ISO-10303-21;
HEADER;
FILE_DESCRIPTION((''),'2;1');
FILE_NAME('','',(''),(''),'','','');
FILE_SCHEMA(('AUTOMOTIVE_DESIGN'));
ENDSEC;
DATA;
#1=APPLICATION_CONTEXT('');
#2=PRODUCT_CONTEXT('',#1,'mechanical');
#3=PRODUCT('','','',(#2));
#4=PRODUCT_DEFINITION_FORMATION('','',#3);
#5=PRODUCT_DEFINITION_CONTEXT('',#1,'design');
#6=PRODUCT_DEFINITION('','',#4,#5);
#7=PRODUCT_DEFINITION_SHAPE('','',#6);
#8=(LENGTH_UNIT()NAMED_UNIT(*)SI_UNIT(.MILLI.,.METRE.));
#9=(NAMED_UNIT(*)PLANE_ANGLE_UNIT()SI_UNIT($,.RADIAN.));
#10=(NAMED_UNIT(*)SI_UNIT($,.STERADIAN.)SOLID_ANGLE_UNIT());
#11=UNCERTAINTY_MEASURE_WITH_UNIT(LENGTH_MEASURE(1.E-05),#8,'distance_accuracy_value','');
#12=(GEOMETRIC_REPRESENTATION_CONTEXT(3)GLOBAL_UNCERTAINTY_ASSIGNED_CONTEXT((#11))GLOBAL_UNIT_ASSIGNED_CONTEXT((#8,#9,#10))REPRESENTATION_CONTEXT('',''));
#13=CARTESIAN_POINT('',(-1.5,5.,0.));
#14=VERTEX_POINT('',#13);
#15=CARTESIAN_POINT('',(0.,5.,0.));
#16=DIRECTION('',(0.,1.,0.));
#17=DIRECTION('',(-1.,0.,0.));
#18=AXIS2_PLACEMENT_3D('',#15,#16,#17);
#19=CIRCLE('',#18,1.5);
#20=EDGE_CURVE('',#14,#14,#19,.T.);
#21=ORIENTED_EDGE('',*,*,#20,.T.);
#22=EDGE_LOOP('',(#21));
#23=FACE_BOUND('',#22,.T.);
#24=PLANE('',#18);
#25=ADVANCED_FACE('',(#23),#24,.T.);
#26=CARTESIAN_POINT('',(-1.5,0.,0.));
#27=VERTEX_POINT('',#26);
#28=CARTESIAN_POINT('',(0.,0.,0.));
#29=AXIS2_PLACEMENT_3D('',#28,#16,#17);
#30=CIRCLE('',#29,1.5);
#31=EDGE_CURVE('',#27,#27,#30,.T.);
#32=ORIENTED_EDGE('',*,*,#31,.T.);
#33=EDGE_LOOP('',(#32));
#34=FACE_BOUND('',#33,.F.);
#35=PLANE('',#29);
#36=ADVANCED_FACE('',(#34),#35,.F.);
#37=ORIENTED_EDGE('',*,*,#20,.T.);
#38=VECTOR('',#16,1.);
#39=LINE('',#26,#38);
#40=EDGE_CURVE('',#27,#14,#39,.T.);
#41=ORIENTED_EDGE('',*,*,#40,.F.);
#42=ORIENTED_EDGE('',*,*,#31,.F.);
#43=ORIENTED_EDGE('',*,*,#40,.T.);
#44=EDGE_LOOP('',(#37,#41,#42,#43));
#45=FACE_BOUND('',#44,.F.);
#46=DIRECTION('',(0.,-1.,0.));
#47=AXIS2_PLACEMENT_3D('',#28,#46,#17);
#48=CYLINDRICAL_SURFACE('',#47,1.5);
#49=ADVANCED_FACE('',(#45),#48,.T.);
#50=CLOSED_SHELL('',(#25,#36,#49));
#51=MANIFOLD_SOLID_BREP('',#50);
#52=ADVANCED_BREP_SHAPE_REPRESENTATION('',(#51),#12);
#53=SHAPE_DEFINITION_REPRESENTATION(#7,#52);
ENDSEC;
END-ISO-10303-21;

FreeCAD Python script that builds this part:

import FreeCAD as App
import Part
import Sketcher
Q = App.Units.Quantity

doc = App.newDocument("Part")
params = doc.addObject("Spreadsheet::Sheet", "Params")
for row, (alias, value) in enumerate([
    ("sketch1_diameter", "3 mm"),
    ("pad1_length", "5 mm"),
], start=1):
    params.set(f"A{row}", alias)
    params.set(f"B{row}", "=" + value)
    params.setAlias(f"B{row}", alias)

body = doc.addObject("PartDesign::Body", "Body")

# Sketch on XZ plane
sketch1 = body.newObject("Sketcher::SketchObject", "Sketch")
sketch1.AttachmentSupport = (doc.getObject("XZ_Plane"), [""])
sketch1.MapMode = "FlatFace"
sketch1.addGeometry(Part.Circle(App.Vector(0, 0, 0), App.Vector(0, 0, 1), 1.5), False)
sketch1.addConstraint([
    Sketcher.Constraint("Coincident", 0, 3, -1, 1),
    Sketcher.Constraint("Diameter", 0, Q("3 mm")),
])
sketch1.setExpression("Constraints[1]", "Params.sketch1_diameter")
pad1 = body.newObject("PartDesign::Pad", "Pad")
pad1.Profile = sketch1
pad1.setExpression("Length", "Params.pad1_length")
pad1.Reversed = True

doc.recompute()
